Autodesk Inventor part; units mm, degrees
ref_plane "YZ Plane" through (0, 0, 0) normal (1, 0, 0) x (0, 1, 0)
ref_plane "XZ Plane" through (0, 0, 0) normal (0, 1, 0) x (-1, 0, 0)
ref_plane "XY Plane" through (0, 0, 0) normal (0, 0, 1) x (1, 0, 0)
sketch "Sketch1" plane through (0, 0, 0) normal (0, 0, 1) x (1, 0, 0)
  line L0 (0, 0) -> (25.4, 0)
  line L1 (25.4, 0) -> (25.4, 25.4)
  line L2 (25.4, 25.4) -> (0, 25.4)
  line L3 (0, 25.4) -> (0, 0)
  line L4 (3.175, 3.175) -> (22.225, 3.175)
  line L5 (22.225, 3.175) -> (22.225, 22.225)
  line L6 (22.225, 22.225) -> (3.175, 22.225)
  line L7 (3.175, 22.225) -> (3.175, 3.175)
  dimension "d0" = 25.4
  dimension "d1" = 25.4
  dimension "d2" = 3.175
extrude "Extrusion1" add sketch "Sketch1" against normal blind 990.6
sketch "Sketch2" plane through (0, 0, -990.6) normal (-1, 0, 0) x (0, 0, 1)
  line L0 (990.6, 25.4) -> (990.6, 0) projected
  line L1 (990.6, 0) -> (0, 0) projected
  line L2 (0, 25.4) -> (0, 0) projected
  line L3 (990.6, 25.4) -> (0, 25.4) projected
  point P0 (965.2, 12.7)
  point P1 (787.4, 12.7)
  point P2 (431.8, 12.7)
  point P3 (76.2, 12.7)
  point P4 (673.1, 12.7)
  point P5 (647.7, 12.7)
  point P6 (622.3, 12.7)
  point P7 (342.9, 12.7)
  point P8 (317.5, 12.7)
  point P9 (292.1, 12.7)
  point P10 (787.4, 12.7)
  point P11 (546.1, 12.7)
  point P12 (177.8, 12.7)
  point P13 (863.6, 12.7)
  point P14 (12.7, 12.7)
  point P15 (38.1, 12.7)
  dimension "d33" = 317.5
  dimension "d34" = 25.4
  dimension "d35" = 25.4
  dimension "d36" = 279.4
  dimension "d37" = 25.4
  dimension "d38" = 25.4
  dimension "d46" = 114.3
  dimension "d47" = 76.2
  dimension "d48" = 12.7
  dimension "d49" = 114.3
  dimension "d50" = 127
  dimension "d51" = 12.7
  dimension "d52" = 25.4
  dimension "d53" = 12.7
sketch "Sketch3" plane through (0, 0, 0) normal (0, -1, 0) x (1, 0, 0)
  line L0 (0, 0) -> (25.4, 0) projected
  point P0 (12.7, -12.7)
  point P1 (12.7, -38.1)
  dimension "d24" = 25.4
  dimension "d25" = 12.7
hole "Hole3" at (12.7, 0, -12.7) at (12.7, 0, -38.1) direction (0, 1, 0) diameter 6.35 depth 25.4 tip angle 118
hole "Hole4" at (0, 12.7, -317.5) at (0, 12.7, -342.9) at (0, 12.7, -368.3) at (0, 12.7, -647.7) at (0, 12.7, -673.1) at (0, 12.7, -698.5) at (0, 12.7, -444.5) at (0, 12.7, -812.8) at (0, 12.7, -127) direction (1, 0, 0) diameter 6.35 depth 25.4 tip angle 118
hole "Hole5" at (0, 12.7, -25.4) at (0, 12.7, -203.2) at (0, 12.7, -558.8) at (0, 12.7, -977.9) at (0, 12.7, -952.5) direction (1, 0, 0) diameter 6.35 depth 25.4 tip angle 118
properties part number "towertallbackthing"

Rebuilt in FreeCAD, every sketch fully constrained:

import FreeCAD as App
import Part
import Sketcher
from FreeCAD import Vector
Q = App.Units.Quantity

doc = App.newDocument("Part")
params = doc.addObject("Spreadsheet::Sheet", "Params")
for row, (alias, value) in enumerate([
    ("sketch1_width", "1 in"),
    ("pad1_length", "39 in"),
    ("sketch2_diameter", "0.25 in"),
    ("hole_diameter", "0.25 in"),
    ("hole_depth", "1 in"),
    ("sketch3_diameter", "0.25 in"),
    ("hole2_diameter", "0.25 in"),
    ("hole2_depth", "1 in"),
    ("sketch4_diameter", "0.25 in"),
    ("hole3_diameter", "0.25 in"),
    ("hole3_depth", "1 in"),
], start=1):
    params.set(f"A{row}", alias)
    params.set(f"B{row}", "=" + value)
    params.setAlias(f"B{row}", alias)

body = doc.addObject("PartDesign::Body", "Body")

# Sketch on XY plane
sketch1 = body.newObject("Sketcher::SketchObject", "Sketch")
sketch1.AttachmentSupport = (doc.getObject("XY_Plane"), [""])
sketch1.MapMode = "FlatFace"
sketch1.addGeometry(Part.LineSegment(Vector(0, 25, 0), Vector(0, 0, 0)), False)
sketch1.addGeometry(Part.LineSegment(Vector(0, 0, 0), Vector(25, 0, 0)), False)
sketch1.addGeometry(Part.LineSegment(Vector(25, 0, 0), Vector(25, 25, 0)), False)
sketch1.addGeometry(Part.LineSegment(Vector(25, 25, 0), Vector(0, 25, 0)), False)
sketch1.addGeometry(Part.LineSegment(Vector(22, 3, 0), Vector(3, 3, 0)), False)
sketch1.addGeometry(Part.LineSegment(Vector(3, 3, 0), Vector(3, 22, 0)), False)
sketch1.addGeometry(Part.LineSegment(Vector(3, 22, 0), Vector(22, 22, 0)), False)
sketch1.addGeometry(Part.LineSegment(Vector(22, 22, 0), Vector(22, 3, 0)), False)
sketch1.addConstraint(Sketcher.Constraint("Coincident", 0, 2, 1, 1))
sketch1.addConstraint(Sketcher.Constraint("Coincident", 1, 2, 2, 1))
sketch1.addConstraint(Sketcher.Constraint("Coincident", 2, 2, 3, 1))
sketch1.addConstraint(Sketcher.Constraint("Coincident", 3, 2, 0, 1))
sketch1.addConstraint(Sketcher.Constraint("Coincident", 4, 2, 5, 1))
sketch1.addConstraint(Sketcher.Constraint("Coincident", 5, 2, 6, 1))
sketch1.addConstraint(Sketcher.Constraint("Coincident", 6, 2, 7, 1))
sketch1.addConstraint(Sketcher.Constraint("Coincident", 7, 2, 4, 1))
sketch1.addConstraint(Sketcher.Constraint("Vertical", 0))
sketch1.addConstraint(Sketcher.Constraint("Horizontal", 1))
sketch1.addConstraint(Sketcher.Constraint("Vertical", 2))
sketch1.addConstraint(Sketcher.Constraint("Horizontal", 3))
sketch1.addConstraint(Sketcher.Constraint("Horizontal", 4))
sketch1.addConstraint(Sketcher.Constraint("Vertical", 5))
sketch1.addConstraint(Sketcher.Constraint("Horizontal", 6))
sketch1.addConstraint(Sketcher.Constraint("Vertical", 7))
sketch1.addConstraint(Sketcher.Constraint("Coincident", 0, 2, -1, 1))
sketch1.addConstraint(Sketcher.Constraint("Equal", 3, 0))
sketch1.addConstraint(Sketcher.Constraint("Equal", 6, 5))
sketch1.addConstraint(Sketcher.Constraint("DistanceX", 1, 1, 1, 2, Q("1 in")))
sketch1.addConstraint(Sketcher.Constraint("DistanceX", -1, 1, 4, 2, Q("0.125 in")))
sketch1.addConstraint(Sketcher.Constraint("DistanceY", -1, 1, 4, 2, Q("0.125 in")))
sketch1.addConstraint(Sketcher.Constraint("DistanceY", 5, 2, 3, 2, Q("0.125 in")))
sketch1.setExpression("Constraints[19]", "Params.sketch1_width")
pad1 = body.newObject("PartDesign::Pad", "Pad")
pad1.Profile = sketch1
pad1.setExpression("Length", "Params.pad1_length")
pad1.Reversed = True

# Sketch on XZ plane
sketch2 = body.newObject("Sketcher::SketchObject", "Sketch001")
sketch2.AttachmentSupport = (doc.getObject("XZ_Plane"), [""])
sketch2.MapMode = "FlatFace"
sketch2.addGeometry(Part.Circle(Vector(12.7, -12.7, 0), Vector(0, 0, 1), 3.2), False)
sketch2.addGeometry(Part.Circle(Vector(12.7, -38.1, 0), Vector(0, 0, 1), 3.2), False)
sketch2.addConstraint(Sketcher.Constraint("Equal", 0, 1))
sketch2.addConstraint(Sketcher.Constraint("Vertical", 0, 3, 1, 3))
sketch2.addConstraint(Sketcher.Constraint("Diameter", 0, Q("0.25 in")))
sketch2.addConstraint(Sketcher.Constraint("DistanceY", 1, 3, 0, 3, Q("1 in")))
sketch2.addConstraint(Sketcher.Constraint("DistanceX", -1, 1, 0, 3, Q("0.5 in")))
sketch2.addConstraint(Sketcher.Constraint("DistanceY", 0, 3, -1, 1, Q("0.5 in")))
sketch2.setExpression("Constraints[2]", "Params.sketch2_diameter")
doc.recompute()
hole = body.newObject("PartDesign::Hole", "Hole")
hole.Profile = sketch2
hole.ThreadType = "None"
hole.setExpression("Diameter", "Params.hole_diameter")
hole.DepthType = "Dimension"
hole.setExpression("Depth", "Params.hole_depth")
hole.DrillPoint = "Angled"
hole.DrillPointAngle = 118

# Sketch on YZ plane
sketch3 = body.newObject("Sketcher::SketchObject", "Sketch002")
sketch3.AttachmentSupport = (doc.getObject("YZ_Plane"), [""])
sketch3.MapMode = "FlatFace"
sketch3.addGeometry(Part.Circle(Vector(12.7, -317.5, 0), Vector(0, 0, 1), 3.2), False)
sketch3.addGeometry(Part.Circle(Vector(12.7, -342.9, 0), Vector(0, 0, 1), 3.2), False)
sketch3.addGeometry(Part.Circle(Vector(12.7, -368.3, 0), Vector(0, 0, 1), 3.2), False)
sketch3.addGeometry(Part.Circle(Vector(12.7, -647.7, 0), Vector(0, 0, 1), 3.2), False)
sketch3.addGeometry(Part.Circle(Vector(12.7, -673.1, 0), Vector(0, 0, 1), 3.2), False)
sketch3.addGeometry(Part.Circle(Vector(12.7, -698.5, 0), Vector(0, 0, 1), 3.2), False)
sketch3.addGeometry(Part.Circle(Vector(12.7, -444.5, 0), Vector(0, 0, 1), 3.2), False)
sketch3.addGeometry(Part.Circle(Vector(12.7, -812.8, 0), Vector(0, 0, 1), 3.2), False)
sketch3.addGeometry(Part.Circle(Vector(12.7, -127, 0), Vector(0, 0, 1), 3.2), False)
sketch3.addConstraint(Sketcher.Constraint("Equal", 0, 1))
sketch3.addConstraint(Sketcher.Constraint("Equal", 1, 2))
sketch3.addConstraint(Sketcher.Constraint("Equal", 2, 3))
sketch3.addConstraint(Sketcher.Constraint("Equal", 3, 4))
sketch3.addConstraint(Sketcher.Constraint("Equal", 4, 5))
sketch3.addConstraint(Sketcher.Constraint("Equal", 5, 6))
sketch3.addConstraint(Sketcher.Constraint("Equal", 6, 7))
sketch3.addConstraint(Sketcher.Constraint("Equal", 7, 8))
sketch3.addConstraint(Sketcher.Constraint("Vertical", 0, 3, 1, 3))
sketch3.addConstraint(Sketcher.Constraint("Vertical", 1, 3, 2, 3))
sketch3.addConstraint(Sketcher.Constraint("Vertical", 2, 3, 3, 3))
sketch3.addConstraint(Sketcher.Constraint("Vertical", 3, 3, 4, 3))
sketch3.addConstraint(Sketcher.Constraint("Vertical", 4, 3, 5, 3))
sketch3.addConstraint(Sketcher.Constraint("Vertical", 5, 3, 6, 3))
sketch3.addConstraint(Sketcher.Constraint("Vertical", 6, 3, 7, 3))
sketch3.addConstraint(Sketcher.Constraint("Vertical", 7, 3, 8, 3))
sketch3.addConstraint(Sketcher.Constraint("Diameter", 0, Q("0.25 in")))
sketch3.addConstraint(Sketcher.Constraint("DistanceY", 7, 3, -1, 1, Q("32 in")))
sketch3.addConstraint(Sketcher.Constraint("DistanceY", 8, 3, -1, 1, Q("5 in")))
sketch3.addConstraint(Sketcher.Constraint("DistanceY", 1, 3, 0, 3, Q("1 in")))
sketch3.addConstraint(Sketcher.Constraint("DistanceY", 2, 3, 1, 3, Q("1 in")))
sketch3.addConstraint(Sketcher.Constraint("DistanceY", 3, 3, 2, 3, Q("11 in")))
sketch3.addConstraint(Sketcher.Constraint("DistanceY", 4, 3, 3, 3, Q("1 in")))
sketch3.addConstraint(Sketcher.Constraint("DistanceY", 5, 3, 4, 3, Q("1 in")))
sketch3.addConstraint(Sketcher.Constraint("DistanceY", 6, 3, 2, 3, Q("3 in")))
sketch3.addConstraint(Sketcher.Constraint("DistanceX", -1, 1, 0, 3, Q("0.5 in")))
sketch3.addConstraint(Sketcher.Constraint("DistanceY", 0, 3, -1, 1, Q("12.5 in")))
sketch3.setExpression("Constraints[16]", "Params.sketch3_diameter")
doc.recompute()
hole2 = body.newObject("PartDesign::Hole", "Hole001")
hole2.Profile = sketch3
hole2.ThreadType = "None"
hole2.setExpression("Diameter", "Params.hole2_diameter")
hole2.DepthType = "Dimension"
hole2.setExpression("Depth", "Params.hole2_depth")
hole2.DrillPoint = "Angled"
hole2.DrillPointAngle = 118
hole2.Reversed = True

# Sketch on YZ plane
sketch4 = body.newObject("Sketcher::SketchObject", "Sketch003")
sketch4.AttachmentSupport = (doc.getObject("YZ_Plane"), [""])
sketch4.MapMode = "FlatFace"
sketch4.addGeometry(Part.Circle(Vector(12.7, -25.4, 0), Vector(0, 0, 1), 3.2), False)
sketch4.addGeometry(Part.Circle(Vector(12.7, -203.2, 0), Vector(0, 0, 1), 3.2), False)
sketch4.addGeometry(Part.Circle(Vector(12.7, -558.8, 0), Vector(0, 0, 1), 3.2), False)
sketch4.addGeometry(Part.Circle(Vector(12.7, -977.9, 0), Vector(0, 0, 1), 3.2), False)
sketch4.addGeometry(Part.Circle(Vector(12.7, -952.5, 0), Vector(0, 0, 1), 3.2), False)
sketch4.addConstraint(Sketcher.Constraint("Equal", 0, 1))
sketch4.addConstraint(Sketcher.Constraint("Equal", 1, 2))
sketch4.addConstraint(Sketcher.Constraint("Equal", 2, 3))
sketch4.addConstraint(Sketcher.Constraint("Equal", 3, 4))
sketch4.addConstraint(Sketcher.Constraint("Vertical", 0, 3, 1, 3))
sketch4.addConstraint(Sketcher.Constraint("Vertical", 1, 3, 2, 3))
sketch4.addConstraint(Sketcher.Constraint("Vertical", 2, 3, 3, 3))
sketch4.addConstraint(Sketcher.Constraint("Vertical", 3, 3, 4, 3))
sketch4.addConstraint(Sketcher.Constraint("Diameter", 0, Q("0.25 in")))
sketch4.addConstraint(Sketcher.Constraint("DistanceY", 0, 3, -1, 1, Q("1 in")))
sketch4.addConstraint(Sketcher.Constraint("DistanceY", 1, 3, -1, 1, Q("8 in")))
sketch4.addConstraint(Sketcher.Constraint("DistanceY", 2, 3, -1, 1, Q("22 in")))
sketch4.addConstraint(Sketcher.Constraint("DistanceY", 3, 3, 4, 3, Q("1 in")))
sketch4.addConstraint(Sketcher.Constraint("DistanceX", -1, 1, 0, 3, Q("0.5 in")))
sketch4.addConstraint(Sketcher.Constraint("DistanceY", 3, 3, -1, 1, Q("38.5 in")))
sketch4.setExpression("Constraints[8]", "Params.sketch4_diameter")
doc.recompute()
hole3 = body.newObject("PartDesign::Hole", "Hole002")
hole3.Profile = sketch4
hole3.ThreadType = "None"
hole3.setExpression("Diameter", "Params.hole3_diameter")
hole3.DepthType = "Dimension"
hole3.setExpression("Depth", "Params.hole3_depth")
hole3.DrillPoint = "Angled"
hole3.DrillPointAngle = 118
hole3.Reversed = True

doc.recompute()
